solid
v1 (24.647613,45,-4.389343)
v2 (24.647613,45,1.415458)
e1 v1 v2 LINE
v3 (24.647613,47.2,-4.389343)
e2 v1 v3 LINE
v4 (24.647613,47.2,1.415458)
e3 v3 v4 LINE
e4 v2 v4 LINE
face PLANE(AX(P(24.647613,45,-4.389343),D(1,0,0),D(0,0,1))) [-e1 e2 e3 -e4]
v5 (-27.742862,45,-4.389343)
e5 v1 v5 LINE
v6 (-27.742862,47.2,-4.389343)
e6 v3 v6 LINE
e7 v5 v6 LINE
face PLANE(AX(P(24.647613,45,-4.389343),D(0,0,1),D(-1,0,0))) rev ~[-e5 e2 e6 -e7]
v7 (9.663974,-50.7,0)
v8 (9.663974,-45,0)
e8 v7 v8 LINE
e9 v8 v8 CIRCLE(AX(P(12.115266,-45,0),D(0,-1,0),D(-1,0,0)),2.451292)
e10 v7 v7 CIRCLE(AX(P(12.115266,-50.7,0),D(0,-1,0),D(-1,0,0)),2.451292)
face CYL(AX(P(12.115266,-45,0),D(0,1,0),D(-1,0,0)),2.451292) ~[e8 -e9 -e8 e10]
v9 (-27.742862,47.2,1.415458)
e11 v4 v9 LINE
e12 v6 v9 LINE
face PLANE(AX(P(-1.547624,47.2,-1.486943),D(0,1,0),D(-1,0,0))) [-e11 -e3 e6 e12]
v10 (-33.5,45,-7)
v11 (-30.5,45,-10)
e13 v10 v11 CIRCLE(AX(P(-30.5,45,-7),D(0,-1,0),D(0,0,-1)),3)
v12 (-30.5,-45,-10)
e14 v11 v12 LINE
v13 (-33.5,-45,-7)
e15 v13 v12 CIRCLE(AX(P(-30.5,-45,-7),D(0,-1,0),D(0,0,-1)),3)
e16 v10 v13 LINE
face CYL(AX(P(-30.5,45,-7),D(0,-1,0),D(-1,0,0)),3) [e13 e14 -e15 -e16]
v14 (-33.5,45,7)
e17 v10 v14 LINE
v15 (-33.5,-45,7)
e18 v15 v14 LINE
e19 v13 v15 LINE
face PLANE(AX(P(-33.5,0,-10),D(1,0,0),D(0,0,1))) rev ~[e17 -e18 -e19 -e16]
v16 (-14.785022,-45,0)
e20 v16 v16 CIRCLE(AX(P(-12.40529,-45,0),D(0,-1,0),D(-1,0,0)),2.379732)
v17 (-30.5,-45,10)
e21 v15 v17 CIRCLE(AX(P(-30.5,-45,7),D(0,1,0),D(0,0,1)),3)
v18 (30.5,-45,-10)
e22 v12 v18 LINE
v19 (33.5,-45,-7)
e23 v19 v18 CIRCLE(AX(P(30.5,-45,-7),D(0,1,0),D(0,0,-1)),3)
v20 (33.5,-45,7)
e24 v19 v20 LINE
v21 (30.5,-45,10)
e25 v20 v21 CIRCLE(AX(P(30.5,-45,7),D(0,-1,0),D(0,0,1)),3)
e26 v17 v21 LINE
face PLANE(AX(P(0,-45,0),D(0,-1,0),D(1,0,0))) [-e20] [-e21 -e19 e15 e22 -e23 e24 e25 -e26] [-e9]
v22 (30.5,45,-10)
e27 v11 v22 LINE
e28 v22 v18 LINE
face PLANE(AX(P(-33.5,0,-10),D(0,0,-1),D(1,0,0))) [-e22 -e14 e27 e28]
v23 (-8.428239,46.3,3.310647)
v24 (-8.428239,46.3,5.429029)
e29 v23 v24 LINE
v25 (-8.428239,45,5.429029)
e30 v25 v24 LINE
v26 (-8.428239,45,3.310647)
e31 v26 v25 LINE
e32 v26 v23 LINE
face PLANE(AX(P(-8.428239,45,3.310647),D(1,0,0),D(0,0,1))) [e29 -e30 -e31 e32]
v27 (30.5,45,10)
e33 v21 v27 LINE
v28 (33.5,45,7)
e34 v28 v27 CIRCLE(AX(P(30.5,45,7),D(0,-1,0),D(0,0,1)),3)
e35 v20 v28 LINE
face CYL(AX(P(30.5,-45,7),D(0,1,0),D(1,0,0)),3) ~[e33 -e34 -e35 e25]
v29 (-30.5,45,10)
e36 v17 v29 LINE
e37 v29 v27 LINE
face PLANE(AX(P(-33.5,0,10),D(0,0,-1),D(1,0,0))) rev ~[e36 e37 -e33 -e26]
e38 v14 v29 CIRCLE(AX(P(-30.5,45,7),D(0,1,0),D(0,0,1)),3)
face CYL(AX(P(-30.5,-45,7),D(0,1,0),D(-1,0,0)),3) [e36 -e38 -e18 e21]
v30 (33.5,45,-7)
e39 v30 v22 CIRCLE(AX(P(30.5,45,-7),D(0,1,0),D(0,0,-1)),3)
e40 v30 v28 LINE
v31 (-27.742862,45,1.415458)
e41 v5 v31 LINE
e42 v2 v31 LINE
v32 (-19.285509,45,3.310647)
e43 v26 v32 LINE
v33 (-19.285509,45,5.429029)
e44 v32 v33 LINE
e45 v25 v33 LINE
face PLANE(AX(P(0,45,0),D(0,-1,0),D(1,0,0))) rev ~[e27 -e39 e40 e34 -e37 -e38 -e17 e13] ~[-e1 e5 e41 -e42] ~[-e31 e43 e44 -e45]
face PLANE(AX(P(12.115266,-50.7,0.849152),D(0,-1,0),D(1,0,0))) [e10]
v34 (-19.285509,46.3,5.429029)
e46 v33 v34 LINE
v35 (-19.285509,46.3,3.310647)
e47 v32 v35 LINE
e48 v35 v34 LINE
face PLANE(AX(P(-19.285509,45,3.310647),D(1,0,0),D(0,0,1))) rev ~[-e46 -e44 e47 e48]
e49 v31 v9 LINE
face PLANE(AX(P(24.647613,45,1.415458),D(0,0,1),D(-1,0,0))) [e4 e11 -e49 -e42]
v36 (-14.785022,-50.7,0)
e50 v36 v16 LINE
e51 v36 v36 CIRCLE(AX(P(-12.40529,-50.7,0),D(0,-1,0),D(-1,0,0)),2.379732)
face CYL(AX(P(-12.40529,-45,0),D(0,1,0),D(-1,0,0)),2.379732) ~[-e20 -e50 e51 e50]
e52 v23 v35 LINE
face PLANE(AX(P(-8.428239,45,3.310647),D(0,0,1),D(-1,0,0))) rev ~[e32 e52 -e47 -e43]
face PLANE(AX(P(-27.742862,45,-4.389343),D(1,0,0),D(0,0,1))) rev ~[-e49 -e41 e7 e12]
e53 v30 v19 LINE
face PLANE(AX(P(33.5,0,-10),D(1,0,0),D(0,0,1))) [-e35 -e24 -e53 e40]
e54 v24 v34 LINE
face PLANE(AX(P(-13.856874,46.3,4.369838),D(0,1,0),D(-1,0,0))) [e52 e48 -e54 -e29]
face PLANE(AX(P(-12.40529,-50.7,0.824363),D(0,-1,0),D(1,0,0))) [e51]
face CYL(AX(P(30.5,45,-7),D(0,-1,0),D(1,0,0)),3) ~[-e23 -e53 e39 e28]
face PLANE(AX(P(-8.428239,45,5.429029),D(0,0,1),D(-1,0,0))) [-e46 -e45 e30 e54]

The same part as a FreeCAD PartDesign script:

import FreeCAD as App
import Part
import Sketcher


def edges_at(feature, points):
    """Names of the edges that pass closest to the given points."""
    edges = feature.Shape.Edges
    near = lambda p: min(range(len(edges)), key=lambda i: edges[i].distToShape(Part.Vertex(*p))[0])
    return sorted({f"Edge{near(p) + 1}" for p in points})

doc = App.newDocument("Part")
body = doc.addObject("PartDesign::Body", "Body")

sketch1 = doc.addObject("Sketcher::SketchObject", "Sketch")
body.addObject(sketch1)
sketch1.AttachmentSupport = (doc.XZ_Plane, [""])
sketch1.MapMode = "FlatFace"
sketch1.addGeometry(Part.LineSegment(App.Vector(-33.5, 10, 0), App.Vector(-33.5, -10, 0)), False)
sketch1.addGeometry(Part.LineSegment(App.Vector(-33.5, -10, 0), App.Vector(33.5, -10, 0)), False)
sketch1.addGeometry(Part.LineSegment(App.Vector(33.5, -10, 0), App.Vector(33.5, 10, 0)), False)
sketch1.addGeometry(Part.LineSegment(App.Vector(33.5, 10, 0), App.Vector(-33.5, 10, 0)), False)
sketch1.addConstraint(Sketcher.Constraint("Coincident", 0, 2, 1, 1))
sketch1.addConstraint(Sketcher.Constraint("Coincident", 1, 2, 2, 1))
sketch1.addConstraint(Sketcher.Constraint("Coincident", 2, 2, 3, 1))
sketch1.addConstraint(Sketcher.Constraint("Coincident", 3, 2, 0, 1))
sketch1.addConstraint(Sketcher.Constraint("Vertical", 0))
sketch1.addConstraint(Sketcher.Constraint("Horizontal", 1))
sketch1.addConstraint(Sketcher.Constraint("Vertical", 2))
sketch1.addConstraint(Sketcher.Constraint("Horizontal", 3))
sketch1.addConstraint(Sketcher.Constraint("Symmetric", 0, 2, 2, 2, -1, 1))
sketch1.addConstraint(Sketcher.Constraint("DistanceX", 1, 1, 1, 2, 67.0))
sketch1.addConstraint(Sketcher.Constraint("DistanceY", 0, 2, 0, 1, 20.0))
pad1 = doc.addObject("PartDesign::Pad", "Pad")
body.addObject(pad1)
pad1.Profile = sketch1
pad1.Length = 90
pad1.Midplane = True
doc.recompute()

fillet = doc.addObject("PartDesign::Fillet", "Fillet")
body.addObject(fillet)
fillet.Base = (pad1, edges_at(pad1, [
    (-33.5, 0, 10),
    (-33.5, 0, -10),
    (33.5, 0, 10),
    (33.5, 0, -10),
]))
fillet.Radius = 3

sketch2 = doc.addObject("Sketcher::SketchObject", "Sketch001")
body.addObject(sketch2)
sketch2.AttachmentSupport = (doc.XZ_Plane, [""])
sketch2.MapMode = "FlatFace"
sketch2.AttachmentOffset = App.Placement(App.Vector(0, 0, 45), App.Rotation())
sketch2.addGeometry(Part.Circle(App.Vector(-12.40529, 0, 0), App.Vector(0, 0, 1), 2.379732), False)
sketch2.addGeometry(Part.Circle(App.Vector(12.115266, 0, 0), App.Vector(0, 0, 1), 2.451292), False)
sketch2.addConstraint(Sketcher.Constraint("PointOnObject", 0, 3, -1))
sketch2.addConstraint(Sketcher.Constraint("PointOnObject", 1, 3, -1))
sketch2.addConstraint(Sketcher.Constraint("Diameter", 0, 4.759464))
sketch2.addConstraint(Sketcher.Constraint("Diameter", 1, 4.902584))
sketch2.addConstraint(Sketcher.Constraint("DistanceX", 0, 3, -1, 1, 12.40529))
sketch2.addConstraint(Sketcher.Constraint("DistanceX", -1, 1, 1, 3, 12.115266))
pad2 = doc.addObject("PartDesign::Pad", "Pad001")
body.addObject(pad2)
pad2.Profile = sketch2
pad2.Length = 5.6

sketch3 = doc.addObject("Sketcher::SketchObject", "Sketch002")
body.addObject(sketch3)
sketch3.AttachmentSupport = (doc.XZ_Plane, [""])
sketch3.MapMode = "FlatFace"
sketch3.AttachmentOffset = App.Placement(App.Vector(0, 0, 45), App.Rotation())
sketch3.addGeometry(Part.Circle(App.Vector(-12.40529, 0, 0), App.Vector(0, 0, 1), 2.379732), False)
sketch3.addGeometry(Part.Circle(App.Vector(12.115266, 0, 0), App.Vector(0, 0, 1), 2.451292), False)
sketch3.addConstraint(Sketcher.Constraint("PointOnObject", 0, 3, -1))
sketch3.addConstraint(Sketcher.Constraint("PointOnObject", 1, 3, -1))
sketch3.addConstraint(Sketcher.Constraint("Diameter", 0, 4.759464))
sketch3.addConstraint(Sketcher.Constraint("Diameter", 1, 4.902584))
sketch3.addConstraint(Sketcher.Constraint("DistanceX", 0, 3, -1, 1, 12.40529))
sketch3.addConstraint(Sketcher.Constraint("DistanceX", -1, 1, 1, 3, 12.115266))
pad3 = doc.addObject("PartDesign::Pad", "Pad002")
body.addObject(pad3)
pad3.Profile = sketch3
pad3.Length = 5.7

sketch4 = doc.addObject("Sketcher::SketchObject", "Sketch003")
body.addObject(sketch4)
sketch4.AttachmentSupport = (doc.XZ_Plane, [""])
sketch4.MapMode = "FlatFace"
sketch4.AttachmentOffset = App.Placement(App.Vector(0, 0, -45), App.Rotation())
sketch4.addGeometry(Part.LineSegment(App.Vector(24.647613, 1.415458, 0), App.Vector(24.647613, -4.389343, 0)), False)
sketch4.addGeometry(Part.LineSegment(App.Vector(24.647613, -4.389343, 0), App.Vector(-27.742862, -4.389343, 0)), False)
sketch4.addGeometry(Part.LineSegment(App.Vector(-27.742862, -4.389343, 0), App.Vector(-27.742862, 1.415458, 0)), False)
sketch4.addGeometry(Part.LineSegment(App.Vector(-27.742862, 1.415458, 0), App.Vector(24.647613, 1.415458, 0)), False)
sketch4.addConstraint(Sketcher.Constraint("Coincident", 0, 2, 1, 1))
sketch4.addConstraint(Sketcher.Constraint("Coincident", 1, 2, 2, 1))
sketch4.addConstraint(Sketcher.Constraint("Coincident", 2, 2, 3, 1))
sketch4.addConstraint(Sketcher.Constraint("Coincident", 3, 2, 0, 1))
sketch4.addConstraint(Sketcher.Constraint("Vertical", 0))
sketch4.addConstraint(Sketcher.Constraint("Horizontal", 1))
sketch4.addConstraint(Sketcher.Constraint("Vertical", 2))
sketch4.addConstraint(Sketcher.Constraint("Horizontal", 3))
sketch4.addConstraint(Sketcher.Constraint("DistanceY", 0, 2, 0, 1, 5.804801))
sketch4.addConstraint(Sketcher.Constraint("DistanceX", 1, 2, 1, 1, 52.390475))
sketch4.addConstraint(Sketcher.Constraint("DistanceX", 1, 2, -1, 1, 27.742862))
sketch4.addConstraint(Sketcher.Constraint("DistanceY", 0, 2, -1, 1, 4.389343))
pad4 = doc.addObject("PartDesign::Pad", "Pad003")
body.addObject(pad4)
pad4.Profile = sketch4
pad4.Length = 2.2
pad4.Reversed = True

sketch5 = doc.addObject("Sketcher::SketchObject", "Sketch004")
body.addObject(sketch5)
sketch5.AttachmentSupport = (doc.XZ_Plane, [""])
sketch5.MapMode = "FlatFace"
sketch5.AttachmentOffset = App.Placement(App.Vector(0, 0, -45), App.Rotation())
sketch5.addGeometry(Part.LineSegment(App.Vector(-8.428239, 5.429029, 0), App.Vector(-8.428239, 3.310647, 0)), False)
sketch5.addGeometry(Part.LineSegment(App.Vector(-8.428239, 3.310647, 0), App.Vector(-19.285509, 3.310647, 0)), False)
sketch5.addGeometry(Part.LineSegment(App.Vector(-19.285509, 3.310647, 0), App.Vector(-19.285509, 5.429029, 0)), False)
sketch5.addGeometry(Part.LineSegment(App.Vector(-19.285509, 5.429029, 0), App.Vector(-8.428239, 5.429029, 0)), False)
sketch5.addConstraint(Sketcher.Constraint("Coincident", 0, 2, 1, 1))
sketch5.addConstraint(Sketcher.Constraint("Coincident", 1, 2, 2, 1))
sketch5.addConstraint(Sketcher.Constraint("Coincident", 2, 2, 3, 1))
sketch5.addConstraint(Sketcher.Constraint("Coincident", 3, 2, 0, 1))
sketch5.addConstraint(Sketcher.Constraint("Vertical", 0))
sketch5.addConstraint(Sketcher.Constraint("Horizontal", 1))
sketch5.addConstraint(Sketcher.Constraint("Vertical", 2))
sketch5.addConstraint(Sketcher.Constraint("Horizontal", 3))
sketch5.addConstraint(Sketcher.Constraint("DistanceX", 1, 2, 1, 1, 10.85727))
sketch5.addConstraint(Sketcher.Constraint("DistanceY", 0, 2, 0, 1, 2.118381))
sketch5.addConstraint(Sketcher.Constraint("DistanceX", 0, 2, -1, 1, 8.428239))
sketch5.addConstraint(Sketcher.Constraint("DistanceY", -1, 1, 2, 2, 5.429029))
pad5 = doc.addObject("PartDesign::Pad", "Pad004")
body.addObject(pad5)
pad5.Profile = sketch5
pad5.Length = 1.3
pad5.Reversed = True

doc.recompute()
